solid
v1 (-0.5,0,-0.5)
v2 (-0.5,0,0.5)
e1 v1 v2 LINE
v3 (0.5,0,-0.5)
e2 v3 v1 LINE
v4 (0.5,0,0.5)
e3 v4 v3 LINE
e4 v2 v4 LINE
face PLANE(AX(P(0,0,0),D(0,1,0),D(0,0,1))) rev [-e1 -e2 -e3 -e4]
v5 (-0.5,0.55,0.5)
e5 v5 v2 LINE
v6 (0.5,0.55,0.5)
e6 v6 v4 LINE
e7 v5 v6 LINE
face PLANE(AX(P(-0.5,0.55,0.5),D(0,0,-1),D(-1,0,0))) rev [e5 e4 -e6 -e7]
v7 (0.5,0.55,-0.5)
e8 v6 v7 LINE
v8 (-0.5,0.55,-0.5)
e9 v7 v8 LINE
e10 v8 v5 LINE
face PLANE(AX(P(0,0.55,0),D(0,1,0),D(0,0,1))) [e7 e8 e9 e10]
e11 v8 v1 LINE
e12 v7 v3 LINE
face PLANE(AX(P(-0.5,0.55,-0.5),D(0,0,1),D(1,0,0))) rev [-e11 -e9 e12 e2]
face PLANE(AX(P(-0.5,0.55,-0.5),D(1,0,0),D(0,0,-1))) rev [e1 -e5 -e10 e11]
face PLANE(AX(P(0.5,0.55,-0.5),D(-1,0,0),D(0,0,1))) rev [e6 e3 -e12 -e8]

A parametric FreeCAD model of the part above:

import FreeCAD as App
import Part
import Sketcher

V = App.Vector
Q = App.Units.Quantity

doc = App.newDocument("Part")
body = doc.addObject("PartDesign::Body", "Body")

# Sketch on XZ plane
sketch1 = body.newObject("Sketcher::SketchObject", "Sketch")
sketch1.AttachmentSupport = (doc.getObject("XZ_Plane"), [""])
sketch1.MapMode = "FlatFace"
sketch1.addGeometry(Part.LineSegment(V(-0.5, -0.5, 0), V(-0.5, 0.5, 0)), False)
sketch1.addGeometry(Part.LineSegment(V(-0.5, 0.5, 0), V(0.5, 0.5, 0)), False)
sketch1.addGeometry(Part.LineSegment(V(0.5, 0.5, 0), V(0.5, -0.5, 0)), False)
sketch1.addGeometry(Part.LineSegment(V(0.5, -0.5, 0), V(-0.5, -0.5, 0)), False)
sketch1.addConstraint(Sketcher.Constraint("Coincident", 0, 2, 1, 1))
sketch1.addConstraint(Sketcher.Constraint("Coincident", 1, 2, 2, 1))
sketch1.addConstraint(Sketcher.Constraint("Coincident", 2, 2, 3, 1))
sketch1.addConstraint(Sketcher.Constraint("Coincident", 3, 2, 0, 1))
sketch1.addConstraint(Sketcher.Constraint("Vertical", 0))
sketch1.addConstraint(Sketcher.Constraint("Horizontal", 1))
sketch1.addConstraint(Sketcher.Constraint("Vertical", 2))
sketch1.addConstraint(Sketcher.Constraint("Horizontal", 3))
sketch1.addConstraint(Sketcher.Constraint("Symmetric", 0, 2, 2, 2, -1, 1))
sketch1.addConstraint(Sketcher.Constraint("Equal", 3, 0))
sketch1.addConstraint(Sketcher.Constraint("DistanceX", 1, 1, 1, 2, Q("1 mm")))
pad1 = body.newObject("PartDesign::Pad", "Pad")
pad1.Profile = sketch1
pad1.Length = 0.55
pad1.Reversed = True

doc.recompute()
